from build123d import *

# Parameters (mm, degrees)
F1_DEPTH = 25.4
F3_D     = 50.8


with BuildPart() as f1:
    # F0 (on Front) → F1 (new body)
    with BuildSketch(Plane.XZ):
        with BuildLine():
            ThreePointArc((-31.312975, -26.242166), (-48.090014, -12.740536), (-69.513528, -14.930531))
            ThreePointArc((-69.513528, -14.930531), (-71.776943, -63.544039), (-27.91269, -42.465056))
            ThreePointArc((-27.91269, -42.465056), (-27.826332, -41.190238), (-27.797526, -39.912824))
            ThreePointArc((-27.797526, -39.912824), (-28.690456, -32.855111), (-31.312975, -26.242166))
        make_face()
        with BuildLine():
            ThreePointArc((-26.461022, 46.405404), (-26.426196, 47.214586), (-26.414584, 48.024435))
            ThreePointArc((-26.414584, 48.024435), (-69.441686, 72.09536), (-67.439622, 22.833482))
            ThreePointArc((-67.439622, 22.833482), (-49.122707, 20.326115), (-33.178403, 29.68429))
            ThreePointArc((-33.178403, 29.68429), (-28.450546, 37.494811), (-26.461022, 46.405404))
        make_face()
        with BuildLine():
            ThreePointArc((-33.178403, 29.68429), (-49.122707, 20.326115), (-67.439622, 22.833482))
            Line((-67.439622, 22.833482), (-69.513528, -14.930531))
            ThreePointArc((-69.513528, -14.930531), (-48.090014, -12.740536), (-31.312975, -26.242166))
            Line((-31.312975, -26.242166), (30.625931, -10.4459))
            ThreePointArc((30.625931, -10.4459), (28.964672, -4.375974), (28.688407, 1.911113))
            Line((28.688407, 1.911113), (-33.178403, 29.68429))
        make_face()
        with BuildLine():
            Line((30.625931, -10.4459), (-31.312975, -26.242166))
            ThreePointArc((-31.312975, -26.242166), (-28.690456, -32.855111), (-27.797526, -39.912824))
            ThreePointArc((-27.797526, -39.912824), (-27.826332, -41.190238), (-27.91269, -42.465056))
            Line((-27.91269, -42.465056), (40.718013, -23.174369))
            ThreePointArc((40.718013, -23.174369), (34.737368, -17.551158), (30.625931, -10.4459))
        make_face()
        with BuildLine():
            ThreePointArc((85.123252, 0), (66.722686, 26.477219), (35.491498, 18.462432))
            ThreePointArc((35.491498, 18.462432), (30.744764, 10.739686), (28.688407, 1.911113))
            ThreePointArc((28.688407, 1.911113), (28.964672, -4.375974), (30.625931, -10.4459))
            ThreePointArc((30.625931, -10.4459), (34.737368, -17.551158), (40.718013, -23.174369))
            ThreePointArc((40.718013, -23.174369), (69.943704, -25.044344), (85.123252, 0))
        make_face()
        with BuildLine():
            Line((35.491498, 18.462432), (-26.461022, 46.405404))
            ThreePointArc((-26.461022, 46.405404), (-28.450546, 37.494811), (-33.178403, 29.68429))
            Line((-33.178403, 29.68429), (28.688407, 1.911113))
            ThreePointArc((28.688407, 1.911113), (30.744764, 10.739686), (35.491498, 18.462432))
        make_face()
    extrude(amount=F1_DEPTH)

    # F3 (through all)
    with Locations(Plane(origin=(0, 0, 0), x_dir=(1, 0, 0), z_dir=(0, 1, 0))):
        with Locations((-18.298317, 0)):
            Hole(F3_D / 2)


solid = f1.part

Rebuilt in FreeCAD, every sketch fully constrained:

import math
import FreeCAD as App
import Part
import Sketcher
from FreeCAD import Vector
Q = App.Units.Quantity

doc = App.newDocument("Part")
body = doc.addObject("PartDesign::Body", "Body")

sketch1 = doc.addObject("Sketcher::SketchObject", "Sketch")
body.addObject(sketch1)
sketch1.AttachmentSupport = (doc.XZ_Plane, [""])
sketch1.MapMode = "FlatFace"
sketch1.addGeometry(Part.ArcOfCircle(Part.Circle(Vector(-56.1, -39.9, 0), Vector(0, 0, 1), 28.3), math.radians(118), math.radians(355)), False)
sketch1.addGeometry(Part.LineSegment(Vector(-27.9, -42.5, 0), Vector(40.7, -23.2, 0)), False)
sketch1.addGeometry(Part.ArcOfCircle(Part.Circle(Vector(56.9, 0, 0), Vector(0, 0, 1), 28.2), math.radians(-125), math.radians(0)), False)
sketch1.addGeometry(Part.ArcOfCircle(Part.Circle(Vector(56.9, 0, 0), Vector(0, 0, 1), 28.2), math.radians(0), math.radians(139)), False)
sketch1.addGeometry(Part.LineSegment(Vector(35.5, 18.5, 0), Vector(-26.5, 46.4, 0)), False)
sketch1.addGeometry(Part.ArcOfCircle(Part.Circle(Vector(-54.7, 48, 0), Vector(0, 0, 1), 28.2), math.radians(-3.29), math.radians(0)), False)
sketch1.addGeometry(Part.ArcOfCircle(Part.Circle(Vector(-54.7, 48, 0), Vector(0, 0, 1), 28.2), math.radians(0), math.radians(243)), False)
sketch1.addGeometry(Part.LineSegment(Vector(-67.4, 22.8, 0), Vector(-69.5, -14.9, 0)), False)
sketch1.addConstraint(Sketcher.Constraint("Coincident", 0, 2, 1, 1))
sketch1.addConstraint(Sketcher.Constraint("Coincident", 1, 2, 2, 1))
sketch1.addConstraint(Sketcher.Constraint("Tangent", 2, 2, 3, 1))
sketch1.addConstraint(Sketcher.Constraint("Coincident", 3, 2, 4, 1))
sketch1.addConstraint(Sketcher.Constraint("Coincident", 4, 2, 5, 1))
sketch1.addConstraint(Sketcher.Constraint("Tangent", 5, 2, 6, 1))
sketch1.addConstraint(Sketcher.Constraint("Coincident", 6, 2, 7, 1))
sketch1.addConstraint(Sketcher.Constraint("Coincident", 7, 2, 0, 1))
sketch1.addConstraint(Sketcher.Constraint("Equal", 2, 3))
sketch1.addConstraint(Sketcher.Constraint("PointOnObject", 2, 3, -1))
sketch1.addConstraint(Sketcher.Constraint("PointOnObject", 2, 2, -1))
sketch1.addConstraint(Sketcher.Constraint("Horizontal", 6, 3, 5, 2))
sketch1.addConstraint(Sketcher.Constraint("Radius", 2, Q("28.249782 mm")))
sketch1.addConstraint(Sketcher.Constraint("Radius", 5, Q("28.246691 mm")))
sketch1.addConstraint(Sketcher.Constraint("Radius", 0, Q("28.338523 mm")))
sketch1.addConstraint(Sketcher.Constraint("Radius", 6, Q("28.246626 mm")))
sketch1.addConstraint(Sketcher.Constraint("DistanceX", 0, 3, 2, 2, Q("141.259301 mm")))
sketch1.addConstraint(Sketcher.Constraint("DistanceY", 1, 2, 3, 2, Q("41.636801 mm")))
sketch1.addConstraint(Sketcher.Constraint("DistanceX", 6, 2, 4, 2, Q("40.9786 mm")))
sketch1.addConstraint(Sketcher.Constraint("Distance", 1, Q("71.29028 mm")))
sketch1.addConstraint(Sketcher.Constraint("Distance", 4, Q("67.962669 mm")))
sketch1.addConstraint(Sketcher.Constraint("DistanceX", 0, 3, -1, 1, Q("56.136049 mm")))
sketch1.addConstraint(Sketcher.Constraint("DistanceY", -1, 1, 5, 3, Q("48.024442 mm")))
sketch1.addConstraint(Sketcher.Constraint("DistanceX", 6, 3, -1, 1, Q("54.66121 mm")))
sketch1.addConstraint(Sketcher.Constraint("DistanceX", 0, 2, -1, 1, Q("27.91269 mm")))
sketch1.addConstraint(Sketcher.Constraint("DistanceY", 1, 2, -1, 1, Q("23.174369 mm")))
sketch1.addConstraint(Sketcher.Constraint("DistanceY", 7, 2, -1, 1, Q("14.930531 mm")))
pad1 = doc.addObject("PartDesign::Pad", "Pad")
body.addObject(pad1)
pad1.Profile = sketch1
pad1.Length = Q("1 in")

sketch2 = doc.addObject("Sketcher::SketchObject", "Sketch001")
body.addObject(sketch2)
sketch2.AttachmentSupport = (doc.XZ_Plane, [""])
sketch2.MapMode = "FlatFace"
sketch2.addGeometry(Part.Circle(Vector(-18, 0, 0), Vector(0, 0, 1), 25), False)
sketch2.addConstraint(Sketcher.Constraint("PointOnObject", 0, 3, -1))
sketch2.addConstraint(Sketcher.Constraint("Diameter", 0, Q("2 in")))
sketch2.addConstraint(Sketcher.Constraint("DistanceX", 0, 3, -1, 1, Q("18.298317 mm")))
doc.recompute()
hole = doc.addObject("PartDesign::Hole", "Hole")
body.addObject(hole)
hole.Profile = sketch2
hole.ThreadType = "None"
hole.Diameter = Q("2 in")
hole.DepthType = "ThroughAll"
hole.Reversed = True

doc.recompute()
